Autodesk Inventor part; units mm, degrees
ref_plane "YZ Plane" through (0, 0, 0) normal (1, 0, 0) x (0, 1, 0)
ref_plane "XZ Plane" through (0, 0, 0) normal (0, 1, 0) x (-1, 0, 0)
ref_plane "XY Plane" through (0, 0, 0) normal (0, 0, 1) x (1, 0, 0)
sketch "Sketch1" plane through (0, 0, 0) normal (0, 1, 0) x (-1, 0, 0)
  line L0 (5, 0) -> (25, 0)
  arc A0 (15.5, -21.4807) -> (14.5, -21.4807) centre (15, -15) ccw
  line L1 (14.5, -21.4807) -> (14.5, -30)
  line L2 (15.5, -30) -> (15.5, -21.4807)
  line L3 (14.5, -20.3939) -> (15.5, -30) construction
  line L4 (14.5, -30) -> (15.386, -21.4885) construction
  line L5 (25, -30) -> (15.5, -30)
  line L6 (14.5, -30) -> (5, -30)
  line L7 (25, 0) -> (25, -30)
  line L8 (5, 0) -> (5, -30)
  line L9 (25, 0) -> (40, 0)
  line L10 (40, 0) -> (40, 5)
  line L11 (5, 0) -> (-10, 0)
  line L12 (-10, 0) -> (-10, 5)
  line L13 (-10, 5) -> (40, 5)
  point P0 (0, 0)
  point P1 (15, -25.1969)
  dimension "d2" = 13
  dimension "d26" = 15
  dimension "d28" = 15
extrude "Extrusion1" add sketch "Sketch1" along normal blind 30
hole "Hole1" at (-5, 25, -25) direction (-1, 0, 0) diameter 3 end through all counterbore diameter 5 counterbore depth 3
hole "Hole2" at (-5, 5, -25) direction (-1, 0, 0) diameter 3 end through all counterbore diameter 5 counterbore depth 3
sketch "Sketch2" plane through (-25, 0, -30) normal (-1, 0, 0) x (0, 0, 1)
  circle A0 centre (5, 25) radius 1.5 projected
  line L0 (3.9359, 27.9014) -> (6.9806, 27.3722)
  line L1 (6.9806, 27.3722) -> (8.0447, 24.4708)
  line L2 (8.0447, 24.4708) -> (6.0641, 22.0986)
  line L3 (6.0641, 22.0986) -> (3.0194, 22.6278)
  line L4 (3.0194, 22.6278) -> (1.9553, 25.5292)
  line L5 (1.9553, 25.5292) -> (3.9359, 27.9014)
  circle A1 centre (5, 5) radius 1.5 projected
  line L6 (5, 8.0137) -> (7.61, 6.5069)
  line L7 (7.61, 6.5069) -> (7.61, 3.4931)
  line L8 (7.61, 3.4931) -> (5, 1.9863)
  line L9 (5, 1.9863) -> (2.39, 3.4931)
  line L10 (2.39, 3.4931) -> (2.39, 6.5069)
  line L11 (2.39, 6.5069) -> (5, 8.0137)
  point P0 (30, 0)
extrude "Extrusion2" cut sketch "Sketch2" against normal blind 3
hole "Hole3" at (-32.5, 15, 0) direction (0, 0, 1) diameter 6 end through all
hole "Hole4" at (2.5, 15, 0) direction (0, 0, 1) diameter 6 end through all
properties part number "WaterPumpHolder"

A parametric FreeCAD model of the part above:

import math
import FreeCAD as App
import Part
import Sketcher

V = App.Vector
Q = App.Units.Quantity


def add_polygon(sketch, points):
    """Adds a closed chain of lines whose ends are joined by coincident constraints."""
    first, n = sketch.GeometryCount, len(points)
    for a, b in zip(points, points[1:] + points[:1]):
        sketch.addGeometry(Part.LineSegment(App.Vector(*a, 0), App.Vector(*b, 0)), False)
    for i in range(n):
        sketch.addConstraint(Sketcher.Constraint("Coincident", first + i, 2, first + (i + 1) % n, 1))

doc = App.newDocument("Part")
body = doc.addObject("PartDesign::Body", "Body")

# Sketch on XZ plane
sketch1 = doc.addObject("Sketcher::SketchObject", "Sketch")
body.addObject(sketch1)
sketch1.AttachmentSupport = (doc.XZ_Plane, [""])
sketch1.MapMode = "FlatFace"
sketch1.addGeometry([
    Part.LineSegment(V(10, 0, 0), V(-5, 0, 0)),  # 0
    Part.LineSegment(V(-5, 0, 0), V(-5, -30, 0)),  # 1
    Part.LineSegment(V(-5, -30, 0), V(-14.5, -30, 0)),  # 2
    Part.LineSegment(V(-14.5, -30, 0), V(-14.5, -21.5, 0)),  # 3
    Part.ArcOfCircle(Part.Circle(V(-15, -15, 0), V(0, 0, 1), 6.5), math.radians(-86), math.radians(266)),  # 4
    Part.LineSegment(V(-15.5, -21.5, 0), V(-15.5, -30, 0)),  # 5
    Part.LineSegment(V(-15.5, -30, 0), V(-25, -30, 0)),  # 6
    Part.LineSegment(V(-25, -30, 0), V(-25, 0, 0)),  # 7
    Part.LineSegment(V(-25, 0, 0), V(-40, 0, 0)),  # 8
    Part.LineSegment(V(-40, 0, 0), V(-40, 5, 0)),  # 9
    Part.LineSegment(V(-40, 5, 0), V(10, 5, 0)),  # 10
    Part.LineSegment(V(10, 5, 0), V(10, 0, 0)),  # 11
], False)
sketch1.addConstraint([
    Sketcher.Constraint("Coincident", 0, 2, 1, 1),
    Sketcher.Constraint("Coincident", 1, 2, 2, 1),
    Sketcher.Constraint("Coincident", 2, 2, 3, 1),
    Sketcher.Constraint("Coincident", 3, 2, 4, 1),
    Sketcher.Constraint("Coincident", 4, 2, 5, 1),
    Sketcher.Constraint("Coincident", 5, 2, 6, 1),
    Sketcher.Constraint("Coincident", 6, 2, 7, 1),
    Sketcher.Constraint("Coincident", 7, 2, 8, 1),
    Sketcher.Constraint("Coincident", 8, 2, 9, 1),
    Sketcher.Constraint("Coincident", 9, 2, 10, 1),
    Sketcher.Constraint("Coincident", 10, 2, 11, 1),
    Sketcher.Constraint("Coincident", 11, 2, 0, 1),
    Sketcher.Constraint("Horizontal", 0),
    Sketcher.Constraint("Vertical", 1),
    Sketcher.Constraint("Horizontal", 2),
    Sketcher.Constraint("Vertical", 3),
    Sketcher.Constraint("Vertical", 5),
    Sketcher.Constraint("Horizontal", 6),
    Sketcher.Constraint("Vertical", 7),
    Sketcher.Constraint("Horizontal", 8),
    Sketcher.Constraint("Vertical", 9),
    Sketcher.Constraint("Horizontal", 10),
    Sketcher.Constraint("Vertical", 11),
    Sketcher.Constraint("PointOnObject", 0, 2, -1),
    Sketcher.Constraint("PointOnObject", 7, 2, -1),
    Sketcher.Constraint("Horizontal", 3, 2, 4, 2),
    Sketcher.Constraint("Horizontal", 2, 2, 5, 2),
    Sketcher.Constraint("Equal", 2, 6),
    Sketcher.Constraint("Equal", 0, 8),
    Sketcher.Constraint("Radius", 4, Q("6.5 mm")),
    Sketcher.Constraint("DistanceX", 0, 2, 0, 1, Q("15 mm")),
    Sketcher.Constraint("DistanceX", 4, 3, -1, 1, Q("15 mm")),
    Sketcher.Constraint("DistanceY", 4, 3, -1, 1, Q("15 mm")),
    Sketcher.Constraint("DistanceY", 1, 2, 4, 3, Q("15 mm")),
    Sketcher.Constraint("DistanceX", 10, 1, 10, 2, Q("50 mm")),
    Sketcher.Constraint("DistanceY", 9, 1, 9, 2, Q("5 mm")),
    Sketcher.Constraint("DistanceX", 2, 2, 2, 1, Q("9.5 mm")),
])
pad1 = doc.addObject("PartDesign::Pad", "Pad")
body.addObject(pad1)
pad1.Profile = sketch1
pad1.Length = 30
pad1.Reversed = True

# Sketch on YZ plane
sketch2 = doc.addObject("Sketcher::SketchObject", "Sketch001")
body.addObject(sketch2)
sketch2.AttachmentSupport = (doc.YZ_Plane, [""])
sketch2.MapMode = "FlatFace"
sketch2.AttachmentOffset = App.Placement(V(0, 0, -5), App.Rotation())
sketch2.addGeometry(Part.Circle(V(25, -25, 0), V(0, 0, 1), 1.5), False)
sketch2.addConstraint([
    Sketcher.Constraint("Diameter", 0, Q("3 mm")),
    Sketcher.Constraint("DistanceX", -1, 1, 0, 3, Q("25 mm")),
    Sketcher.Constraint("DistanceY", 0, 3, -1, 1, Q("25 mm")),
])
doc.recompute()
hole = doc.addObject("PartDesign::Hole", "Hole")
body.addObject(hole)
hole.Profile = sketch2
hole.ThreadType = "None"
hole.Diameter = 3
hole.DepthType = "ThroughAll"
hole.HoleCutType = "Counterbore"
hole.HoleCutDiameter = 5
hole.HoleCutDepth = 3

# Sketch on YZ plane
sketch3 = doc.addObject("Sketcher::SketchObject", "Sketch002")
body.addObject(sketch3)
sketch3.AttachmentSupport = (doc.YZ_Plane, [""])
sketch3.MapMode = "FlatFace"
sketch3.AttachmentOffset = App.Placement(V(0, 0, -5), App.Rotation())
sketch3.addGeometry(Part.Circle(V(5, -25, 0), V(0, 0, 1), 1.5), False)
sketch3.addConstraint([
    Sketcher.Constraint("Diameter", 0, Q("3 mm")),
    Sketcher.Constraint("DistanceX", -1, 1, 0, 3, Q("5 mm")),
    Sketcher.Constraint("DistanceY", 0, 3, -1, 1, Q("25 mm")),
])
doc.recompute()
hole2 = doc.addObject("PartDesign::Hole", "Hole001")
body.addObject(hole2)
hole2.Profile = sketch3
hole2.ThreadType = "None"
hole2.Diameter = 3
hole2.DepthType = "ThroughAll"
hole2.HoleCutType = "Counterbore"
hole2.HoleCutDiameter = 5
hole2.HoleCutDepth = 3

# Sketch on YZ plane
sketch4 = doc.addObject("Sketcher::SketchObject", "Sketch003")
body.addObject(sketch4)
sketch4.AttachmentSupport = (doc.YZ_Plane, [""])
sketch4.MapMode = "FlatFace"
sketch4.AttachmentOffset = App.Placement(V(0, 0, -25), App.Rotation())
add_polygon(sketch4, [(27.4, -23), (27.9, -26.1), (25.5, -28), (22.6, -27), (22.1, -23.9), (24.5, -22)])  # lines 0-5
sketch4.addGeometry(Part.Circle(V(25, -25, 0), V(0, 0, 1), 1.5), False)  # 6
add_polygon(sketch4, [(6.5, -22.4), (8, -25), (6.5, -27.6), (3.5, -27.6), (2, -25), (3.5, -22.4)])  # lines 7-12
sketch4.addGeometry(Part.Circle(V(5, -25, 0), V(0, 0, 1), 1.5), False)  # 13
sketch4.addConstraint([
    Sketcher.Constraint("Horizontal", 9),
    Sketcher.Constraint("Horizontal", 12),
    Sketcher.Constraint("Equal", 6, 13),
    Sketcher.Constraint("Parallel", 0, 3),
    Sketcher.Constraint("Parallel", 1, 4),
    Sketcher.Constraint("Parallel", 2, 5),
    Sketcher.Constraint("Parallel", 7, 10),
    Sketcher.Constraint("Parallel", 8, 11),
    Sketcher.Constraint("Horizontal", 6, 3, 13, 3),
    Sketcher.Constraint("Horizontal", 13, 3, 7, 2),
    Sketcher.Constraint("Horizontal", 7, 2, 10, 2),
    Sketcher.Constraint("Vertical", 9, 2, 11, 2),
    Sketcher.Constraint("Vertical", 8, 2, 12, 2),
    Sketcher.Constraint("Equal", 0, 1),
    Sketcher.Constraint("Equal", 1, 2),
    Sketcher.Constraint("Equal", 2, 3),
    Sketcher.Constraint("Diameter", 6, Q("3 mm")),
    Sketcher.Constraint("DistanceX", -1, 1, 6, 3, Q("25 mm")),
    Sketcher.Constraint("DistanceY", 6, 3, -1, 1, Q("25 mm")),
    Sketcher.Constraint("DistanceX", -1, 1, 13, 3, Q("5 mm")),
    Sketcher.Constraint("Angle", 0, Q("-80.14 deg")),
    Sketcher.Constraint("Angle", 1, Q("-140.1408 deg")),
    Sketcher.Constraint("Angle", 2, Q("159.8593 deg")),
    Sketcher.Constraint("DistanceY", 8, 2, -1, 1, Q("27.61 mm")),
    Sketcher.Constraint("DistanceX", 9, 2, 9, 1, Q("3.0138 mm")),
    Sketcher.Constraint("DistanceY", 0, 2, -1, 1, Q("26.064 mm")),
    Sketcher.Constraint("DistanceY", 3, 2, -1, 1, Q("23.936 mm")),
    Sketcher.Constraint("DistanceX", -1, 1, 8, 2, Q("6.507 mm")),
    Sketcher.Constraint("DistanceX", 7, 2, 3, 2, Q("14.085 mm")),
    Sketcher.Constraint("DistanceX", 8, 2, 2, 2, Q("16.121 mm")),
])
pocket1 = doc.addObject("PartDesign::Pocket", "Pocket")
body.addObject(pocket1)
pocket1.Profile = sketch4
pocket1.Length = 3
pocket1.Reversed = True

# Sketch on XY plane
sketch5 = doc.addObject("Sketcher::SketchObject", "Sketch004")
body.addObject(sketch5)
sketch5.AttachmentSupport = (doc.XY_Plane, [""])
sketch5.MapMode = "FlatFace"
sketch5.addGeometry(Part.Circle(V(-32.5, 15, 0), V(0, 0, 1), 3), False)
sketch5.addConstraint([
    Sketcher.Constraint("Diameter", 0, Q("6 mm")),
    Sketcher.Constraint("DistanceY", -1, 1, 0, 3, Q("15 mm")),
    Sketcher.Constraint("DistanceX", 0, 3, -1, 1, Q("32.5 mm")),
])
doc.recompute()
hole3 = doc.addObject("PartDesign::Hole", "Hole002")
body.addObject(hole3)
hole3.Profile = sketch5
hole3.ThreadType = "None"
hole3.Diameter = 6
hole3.DepthType = "ThroughAll"
hole3.Reversed = True

# Sketch on XY plane
sketch6 = doc.addObject("Sketcher::SketchObject", "Sketch005")
body.addObject(sketch6)
sketch6.AttachmentSupport = (doc.XY_Plane, [""])
sketch6.MapMode = "FlatFace"
sketch6.addGeometry(Part.Circle(V(2.5, 15, 0), V(0, 0, 1), 3), False)
sketch6.addConstraint([
    Sketcher.Constraint("Diameter", 0, Q("6 mm")),
    Sketcher.Constraint("DistanceY", -1, 1, 0, 3, Q("15 mm")),
    Sketcher.Constraint("DistanceX", -1, 1, 0, 3, Q("2.5 mm")),
])
doc.recompute()
hole4 = doc.addObject("PartDesign::Hole", "Hole003")
body.addObject(hole4)
hole4.Profile = sketch6
hole4.ThreadType = "None"
hole4.Diameter = 6
hole4.DepthType = "ThroughAll"
hole4.Reversed = True

doc.recompute()
